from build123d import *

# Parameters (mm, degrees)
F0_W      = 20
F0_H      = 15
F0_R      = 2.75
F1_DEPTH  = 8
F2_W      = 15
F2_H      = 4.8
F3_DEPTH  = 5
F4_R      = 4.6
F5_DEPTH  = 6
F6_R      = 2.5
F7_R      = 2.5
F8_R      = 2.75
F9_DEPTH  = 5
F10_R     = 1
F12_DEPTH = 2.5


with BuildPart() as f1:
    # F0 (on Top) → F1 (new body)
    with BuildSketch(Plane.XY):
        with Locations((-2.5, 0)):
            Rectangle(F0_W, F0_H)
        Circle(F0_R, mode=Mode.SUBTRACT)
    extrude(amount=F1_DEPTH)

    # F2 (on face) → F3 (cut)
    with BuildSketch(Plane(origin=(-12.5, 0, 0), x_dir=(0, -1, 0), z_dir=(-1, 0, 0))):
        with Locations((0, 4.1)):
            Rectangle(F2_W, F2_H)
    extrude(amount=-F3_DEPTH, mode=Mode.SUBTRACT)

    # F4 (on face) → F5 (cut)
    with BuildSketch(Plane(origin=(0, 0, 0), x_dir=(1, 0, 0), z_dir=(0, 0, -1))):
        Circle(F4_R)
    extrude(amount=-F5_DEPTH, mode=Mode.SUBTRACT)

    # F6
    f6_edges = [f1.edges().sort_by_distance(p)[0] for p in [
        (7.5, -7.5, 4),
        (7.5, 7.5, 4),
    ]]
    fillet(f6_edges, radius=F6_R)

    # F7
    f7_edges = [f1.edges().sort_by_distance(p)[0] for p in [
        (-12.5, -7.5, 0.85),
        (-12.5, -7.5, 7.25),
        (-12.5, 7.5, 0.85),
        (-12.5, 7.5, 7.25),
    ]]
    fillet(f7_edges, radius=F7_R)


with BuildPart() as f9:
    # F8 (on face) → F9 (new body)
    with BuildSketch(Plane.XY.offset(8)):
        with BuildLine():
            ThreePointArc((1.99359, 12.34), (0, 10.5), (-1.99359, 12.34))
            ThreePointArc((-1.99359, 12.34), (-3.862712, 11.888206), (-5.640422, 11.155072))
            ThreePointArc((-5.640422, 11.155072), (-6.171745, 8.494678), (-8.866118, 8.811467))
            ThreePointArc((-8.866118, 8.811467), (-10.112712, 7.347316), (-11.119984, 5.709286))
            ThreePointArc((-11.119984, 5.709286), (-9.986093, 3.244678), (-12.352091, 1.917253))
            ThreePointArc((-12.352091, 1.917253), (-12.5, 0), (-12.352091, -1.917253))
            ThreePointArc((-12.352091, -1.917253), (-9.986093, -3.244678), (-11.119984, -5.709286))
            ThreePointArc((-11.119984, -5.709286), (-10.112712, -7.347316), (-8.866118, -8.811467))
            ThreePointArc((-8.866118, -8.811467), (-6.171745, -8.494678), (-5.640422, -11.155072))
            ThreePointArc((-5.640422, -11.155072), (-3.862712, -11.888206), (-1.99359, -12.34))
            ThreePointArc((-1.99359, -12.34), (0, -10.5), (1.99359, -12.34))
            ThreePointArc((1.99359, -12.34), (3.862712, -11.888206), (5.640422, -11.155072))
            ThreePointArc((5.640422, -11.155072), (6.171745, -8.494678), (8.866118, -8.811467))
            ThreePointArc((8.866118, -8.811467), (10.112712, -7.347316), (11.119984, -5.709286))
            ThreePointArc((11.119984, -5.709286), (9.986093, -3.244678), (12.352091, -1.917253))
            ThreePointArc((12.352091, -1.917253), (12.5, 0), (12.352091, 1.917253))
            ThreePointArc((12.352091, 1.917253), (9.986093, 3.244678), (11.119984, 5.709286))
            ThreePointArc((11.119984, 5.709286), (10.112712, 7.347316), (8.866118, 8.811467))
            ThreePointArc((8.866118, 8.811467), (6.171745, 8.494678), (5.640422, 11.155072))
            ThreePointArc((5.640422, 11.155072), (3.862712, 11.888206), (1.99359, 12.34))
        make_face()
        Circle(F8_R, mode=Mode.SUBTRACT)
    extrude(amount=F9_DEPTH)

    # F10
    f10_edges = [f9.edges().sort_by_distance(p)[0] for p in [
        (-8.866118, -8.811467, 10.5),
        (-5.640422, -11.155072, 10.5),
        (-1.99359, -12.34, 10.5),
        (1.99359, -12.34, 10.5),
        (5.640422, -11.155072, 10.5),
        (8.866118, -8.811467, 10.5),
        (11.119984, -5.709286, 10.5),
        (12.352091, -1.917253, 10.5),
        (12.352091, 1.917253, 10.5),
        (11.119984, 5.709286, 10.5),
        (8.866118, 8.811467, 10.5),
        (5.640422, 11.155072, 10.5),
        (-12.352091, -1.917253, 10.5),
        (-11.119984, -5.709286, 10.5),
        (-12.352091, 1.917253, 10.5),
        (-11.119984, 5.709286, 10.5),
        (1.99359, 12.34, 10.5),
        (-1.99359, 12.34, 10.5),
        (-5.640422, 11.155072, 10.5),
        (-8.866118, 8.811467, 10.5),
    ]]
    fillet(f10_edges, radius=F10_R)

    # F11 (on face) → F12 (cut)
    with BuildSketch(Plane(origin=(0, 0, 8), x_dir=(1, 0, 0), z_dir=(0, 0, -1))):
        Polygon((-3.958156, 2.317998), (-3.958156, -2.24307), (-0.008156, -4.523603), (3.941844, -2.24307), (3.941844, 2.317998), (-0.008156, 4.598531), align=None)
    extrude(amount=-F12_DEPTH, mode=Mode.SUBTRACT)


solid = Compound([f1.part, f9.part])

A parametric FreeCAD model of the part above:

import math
import FreeCAD as App
import Part
import Sketcher
Q = App.Units.Quantity


def edges_at(feature, points):
    """Names of the edges that pass closest to the given points."""
    edges = feature.Shape.Edges
    near = lambda p: min(range(len(edges)), key=lambda i: edges[i].distToShape(Part.Vertex(*p))[0])
    return sorted({f"Edge{near(p) + 1}" for p in points})

doc = App.newDocument("Part")
params = doc.addObject("Spreadsheet::Sheet", "Params")
for row, (alias, value) in enumerate([
    ("sketch1_diameter", "5.5 mm"),
    ("sketch1_width", "20 mm"),
    ("sketch1_height", "15 mm"),
    ("pad1_length", "8 mm"),
    ("sketch2_width", "15 mm"),
    ("sketch2_height", "4.8 mm"),
    ("pocket1_length", "5 mm"),
    ("sketch3_diameter", "9.2 mm"),
    ("pocket2_length", "6 mm"),
    ("fillet_radius", "2.5 mm"),
    ("fillet2_radius", "2.5 mm"),
    ("sketch4_radius", "2 mm"),
    ("sketch4_diameter", "5.5 mm"),
    ("pad2_length", "5 mm"),
    ("fillet3_radius", "1 mm"),
    ("pocket3_length", "2.5 mm"),
], start=1):
    params.set(f"A{row}", alias)
    params.set(f"B{row}", "=" + value)
    params.setAlias(f"B{row}", alias)

body = doc.addObject("PartDesign::Body", "Body")

# Sketch on XY plane
sketch1 = body.newObject("Sketcher::SketchObject", "Sketch")
sketch1.AttachmentSupport = (doc.getObject("XY_Plane"), [""])
sketch1.MapMode = "FlatFace"
sketch1.addGeometry(Part.LineSegment(App.Vector(-12.5, 7.5, 0), App.Vector(-12.5, -7.5, 0)), False)
sketch1.addGeometry(Part.LineSegment(App.Vector(-12.5, -7.5, 0), App.Vector(7.5, -7.5, 0)), False)
sketch1.addGeometry(Part.LineSegment(App.Vector(7.5, -7.5, 0), App.Vector(7.5, 7.5, 0)), False)
sketch1.addGeometry(Part.LineSegment(App.Vector(7.5, 7.5, 0), App.Vector(-12.5, 7.5, 0)), False)
sketch1.addGeometry(Part.Circle(App.Vector(0, 0, 0), App.Vector(0, 0, 1), 2.75), False)
sketch1.addConstraint(Sketcher.Constraint("Coincident", 0, 2, 1, 1))
sketch1.addConstraint(Sketcher.Constraint("Coincident", 1, 2, 2, 1))
sketch1.addConstraint(Sketcher.Constraint("Coincident", 2, 2, 3, 1))
sketch1.addConstraint(Sketcher.Constraint("Coincident", 3, 2, 0, 1))
sketch1.addConstraint(Sketcher.Constraint("Vertical", 0))
sketch1.addConstraint(Sketcher.Constraint("Horizontal", 1))
sketch1.addConstraint(Sketcher.Constraint("Vertical", 2))
sketch1.addConstraint(Sketcher.Constraint("Horizontal", 3))
sketch1.addConstraint(Sketcher.Constraint("Coincident", 4, 3, -1, 1))
sketch1.addConstraint(Sketcher.Constraint("Diameter", 4, Q("5.5 mm")))
sketch1.addConstraint(Sketcher.Constraint("DistanceX", 1, 1, 1, 2, Q("20 mm")))
sketch1.addConstraint(Sketcher.Constraint("DistanceY", 0, 2, 0, 1, Q("15 mm")))
sketch1.addConstraint(Sketcher.Constraint("DistanceX", 0, 2, -1, 1, Q("12.5 mm")))
sketch1.addConstraint(Sketcher.Constraint("DistanceY", 0, 2, -1, 1, Q("7.5 mm")))
sketch1.setExpression("Constraints[9]", "Params.sketch1_diameter")
sketch1.setExpression("Constraints[10]", "Params.sketch1_width")
sketch1.setExpression("Constraints[11]", "Params.sketch1_height")
pad1 = body.newObject("PartDesign::Pad", "Pad")
pad1.Profile = sketch1
pad1.setExpression("Length", "Params.pad1_length")

# Sketch on YZ plane
sketch2 = body.newObject("Sketcher::SketchObject", "Sketch001")
sketch2.AttachmentSupport = (doc.getObject("YZ_Plane"), [""])
sketch2.MapMode = "FlatFace"
sketch2.AttachmentOffset = App.Placement(App.Vector(0, 0, -12.5), App.Rotation())
sketch2.addGeometry(Part.LineSegment(App.Vector(7.5, 6.5, 0), App.Vector(7.5, 1.7, 0)), False)
sketch2.addGeometry(Part.LineSegment(App.Vector(7.5, 1.7, 0), App.Vector(-7.5, 1.7, 0)), False)
sketch2.addGeometry(Part.LineSegment(App.Vector(-7.5, 1.7, 0), App.Vector(-7.5, 6.5, 0)), False)
sketch2.addGeometry(Part.LineSegment(App.Vector(-7.5, 6.5, 0), App.Vector(7.5, 6.5, 0)), False)
sketch2.addConstraint(Sketcher.Constraint("Coincident", 0, 2, 1, 1))
sketch2.addConstraint(Sketcher.Constraint("Coincident", 1, 2, 2, 1))
sketch2.addConstraint(Sketcher.Constraint("Coincident", 2, 2, 3, 1))
sketch2.addConstraint(Sketcher.Constraint("Coincident", 3, 2, 0, 1))
sketch2.addConstraint(Sketcher.Constraint("Vertical", 0))
sketch2.addConstraint(Sketcher.Constraint("Horizontal", 1))
sketch2.addConstraint(Sketcher.Constraint("Vertical", 2))
sketch2.addConstraint(Sketcher.Constraint("Horizontal", 3))
sketch2.addConstraint(Sketcher.Constraint("DistanceX", 1, 2, 1, 1, Q("15 mm")))
sketch2.addConstraint(Sketcher.Constraint("DistanceY", 0, 2, 0, 1, Q("4.8 mm")))
sketch2.addConstraint(Sketcher.Constraint("DistanceX", -1, 1, 0, 2, Q("7.5 mm")))
sketch2.addConstraint(Sketcher.Constraint("DistanceY", -1, 1, 0, 2, Q("1.7 mm")))
sketch2.setExpression("Constraints[8]", "Params.sketch2_width")
sketch2.setExpression("Constraints[9]", "Params.sketch2_height")
pocket1 = body.newObject("PartDesign::Pocket", "Pocket")
pocket1.Profile = sketch2
pocket1.setExpression("Length", "Params.pocket1_length")
pocket1.Reversed = True

# Sketch on XY plane
sketch3 = body.newObject("Sketcher::SketchObject", "Sketch002")
sketch3.AttachmentSupport = (doc.getObject("XY_Plane"), [""])
sketch3.MapMode = "FlatFace"
sketch3.addGeometry(Part.Circle(App.Vector(0, 0, 0), App.Vector(0, 0, 1), 4.6), False)
sketch3.addConstraint(Sketcher.Constraint("Coincident", 0, 3, -1, 1))
sketch3.addConstraint(Sketcher.Constraint("Diameter", 0, Q("9.2 mm")))
sketch3.setExpression("Constraints[1]", "Params.sketch3_diameter")
pocket2 = body.newObject("PartDesign::Pocket", "Pocket001")
pocket2.Profile = sketch3
pocket2.setExpression("Length", "Params.pocket2_length")
pocket2.Reversed = True
doc.recompute()

fillet = body.newObject("PartDesign::Fillet", "Fillet")
fillet.Base = (pocket2, edges_at(pocket2, [(7.5, -7.5, 4), (7.5, 7.5, 4)]))
fillet.setExpression("Radius", "Params.fillet_radius")
doc.recompute()

fillet2 = body.newObject("PartDesign::Fillet", "Fillet001")
fillet2.Base = (fillet, edges_at(fillet, [
    (-12.5, -7.5, 0.85),
    (-12.5, -7.5, 7.25),
    (-12.5, 7.5, 0.85),
    (-12.5, 7.5, 7.25),
]))
fillet2.setExpression("Radius", "Params.fillet2_radius")
body2 = doc.addObject("PartDesign::Body", "Body001")

# Sketch on XY plane
sketch4 = body2.newObject("Sketcher::SketchObject", "Sketch003")
sketch4.AttachmentSupport = (doc.getObject("XY_Plane001"), [""])
sketch4.MapMode = "FlatFace"
sketch4.AttachmentOffset = App.Placement(App.Vector(0, 0, 8), App.Rotation())
sketch4.addGeometry(Part.ArcOfCircle(Part.Circle(App.Vector(0, 12.5, 0), App.Vector(0, 0, 1), 2), math.radians(-175.411426), math.radians(-4.588574)), False)
sketch4.addGeometry(Part.ArcOfCircle(Part.Circle(App.Vector(0.000012, -0.000033, 0), App.Vector(0, 0, 1), 12.500035), math.radians(99.177163), math.radians(116.82285)), False)
sketch4.addGeometry(Part.ArcOfCircle(Part.Circle(App.Vector(-7.347315, 10.112712, 0), App.Vector(0, 0, 1), 2), math.radians(-139.411448), math.radians(31.41144)), False)
sketch4.addGeometry(Part.ArcOfCircle(Part.Circle(App.Vector(-0.000003, 0.000004, 0), App.Vector(0, 0, 1), 12.499995), math.radians(135.177133), math.radians(152.822877)), False)
sketch4.addGeometry(Part.ArcOfCircle(Part.Circle(App.Vector(-11.888206, 3.862712, 0), App.Vector(0, 0, 1), 2), math.radians(-103.411459), math.radians(67.411437)), False)
sketch4.addGeometry(Part.ArcOfCircle(Part.Circle(App.Vector(0.000038, 0, 0), App.Vector(0, 0, 1), 12.500038), math.radians(171.177159), math.radians(188.822841)), False)
sketch4.addGeometry(Part.ArcOfCircle(Part.Circle(App.Vector(-11.888206, -3.862712, 0), App.Vector(0, 0, 1), 2), math.radians(-67.411437), math.radians(103.411459)), False)
sketch4.addGeometry(Part.ArcOfCircle(Part.Circle(App.Vector(-0.000003, -0.000004, 0), App.Vector(0, 0, 1), 12.499995), math.radians(-152.822877), math.radians(-135.177133)), False)
sketch4.addGeometry(Part.ArcOfCircle(Part.Circle(App.Vector(-7.347315, -10.112712, 0), App.Vector(0, 0, 1), 2), math.radians(-31.41144), math.radians(139.411448)), False)
sketch4.addGeometry(Part.ArcOfCircle(Part.Circle(App.Vector(0.000012, 0.000033, 0), App.Vector(0, 0, 1), 12.500035), math.radians(-116.82285), math.radians(-99.177163)), False)
sketch4.addGeometry(Part.ArcOfCircle(Part.Circle(App.Vector(0, -12.5, 0), App.Vector(0, 0, 1), 2), math.radians(4.588574), math.radians(175.411426)), False)
sketch4.addGeometry(Part.ArcOfCircle(Part.Circle(App.Vector(-0.000012, 0.000033, 0), App.Vector(0, 0, 1), 12.500035), math.radians(-80.822837), math.radians(-63.17715)), False)
sketch4.addGeometry(Part.ArcOfCircle(Part.Circle(App.Vector(7.347315, -10.112712, 0), App.Vector(0, 0, 1), 2), math.radians(40.588552), math.radians(211.41144)), False)
sketch4.addGeometry(Part.ArcOfCircle(Part.Circle(App.Vector(0.000003, -0.000004, 0), App.Vector(0, 0, 1), 12.499995), math.radians(-44.822867), math.radians(-27.177123)), False)
sketch4.addGeometry(Part.ArcOfCircle(Part.Circle(App.Vector(11.888206, -3.862712, 0), App.Vector(0, 0, 1), 2), math.radians(76.588541), math.radians(247.411437)), False)
sketch4.addGeometry(Part.ArcOfCircle(Part.Circle(App.Vector(-0.000038, 0, 0), App.Vector(0, 0, 1), 12.500038), math.radians(-8.822841), math.radians(8.822841)), False)
sketch4.addGeometry(Part.ArcOfCircle(Part.Circle(App.Vector(11.888206, 3.862712, 0), App.Vector(0, 0, 1), 2), math.radians(112.588563), math.radians(283.411459)), False)
sketch4.addGeometry(Part.ArcOfCircle(Part.Circle(App.Vector(0.000003, 0.000004, 0), App.Vector(0, 0, 1), 12.499995), math.radians(27.177123), math.radians(44.822867)), False)
sketch4.addGeometry(Part.ArcOfCircle(Part.Circle(App.Vector(7.347315, 10.112712, 0), App.Vector(0, 0, 1), 2), math.radians(148.58856), math.radians(319.411448)), False)
sketch4.addGeometry(Part.ArcOfCircle(Part.Circle(App.Vector(-0.000012, -0.000033, 0), App.Vector(0, 0, 1), 12.500035), math.radians(63.17715), math.radians(80.822837)), False)
sketch4.addGeometry(Part.Circle(App.Vector(0, 0, 0), App.Vector(0, 0, 1), 2.75), False)
sketch4.addConstraint(Sketcher.Constraint("Coincident", 0, 1, 1, 1))
sketch4.addConstraint(Sketcher.Constraint("Coincident", 1, 2, 2, 2))
sketch4.addConstraint(Sketcher.Constraint("Coincident", 2, 1, 3, 1))
sketch4.addConstraint(Sketcher.Constraint("Coincident", 3, 2, 4, 2))
sketch4.addConstraint(Sketcher.Constraint("Coincident", 4, 1, 5, 1))
sketch4.addConstraint(Sketcher.Constraint("Coincident", 5, 2, 6, 2))
sketch4.addConstraint(Sketcher.Constraint("Coincident", 6, 1, 7, 1))
sketch4.addConstraint(Sketcher.Constraint("Coincident", 7, 2, 8, 2))
sketch4.addConstraint(Sketcher.Constraint("Coincident", 8, 1, 9, 1))
sketch4.addConstraint(Sketcher.Constraint("Coincident", 9, 2, 10, 2))
sketch4.addConstraint(Sketcher.Constraint("Coincident", 10, 1, 11, 1))
sketch4.addConstraint(Sketcher.Constraint("Coincident", 11, 2, 12, 2))
sketch4.addConstraint(Sketcher.Constraint("Coincident", 12, 1, 13, 1))
sketch4.addConstraint(Sketcher.Constraint("Coincident", 13, 2, 14, 2))
sketch4.addConstraint(Sketcher.Constraint("Coincident", 14, 1, 15, 1))
sketch4.addConstraint(Sketcher.Constraint("Coincident", 15, 2, 16, 2))
sketch4.addConstraint(Sketcher.Constraint("Coincident", 16, 1, 17, 1))
sketch4.addConstraint(Sketcher.Constraint("Coincident", 17, 2, 18, 2))
sketch4.addConstraint(Sketcher.Constraint("Coincident", 18, 1, 19, 1))
sketch4.addConstraint(Sketcher.Constraint("Coincident", 19, 2, 0, 2))
sketch4.addConstraint(Sketcher.Constraint("Coincident", 3, 3, -1, 1))
sketch4.addConstraint(Sketcher.Constraint("Coincident", 7, 3, -1, 1))
sketch4.addConstraint(Sketcher.Constraint("Coincident", 13, 3, -1, 1))
sketch4.addConstraint(Sketcher.Constraint("Coincident", 17, 3, -1, 1))
sketch4.addConstraint(Sketcher.Constraint("Coincident", 20, 3, -1, 1))
sketch4.addConstraint(Sketcher.Constraint("Equal", 0, 2))
sketch4.addConstraint(Sketcher.Constraint("Equal", 2, 4))
sketch4.addConstraint(Sketcher.Constraint("Equal", 4, 6))
sketch4.addConstraint(Sketcher.Constraint("Equal", 3, 7))
sketch4.addConstraint(Sketcher.Constraint("Equal", 6, 8))
sketch4.addConstraint(Sketcher.Constraint("Equal", 1, 9))
sketch4.addConstraint(Sketcher.Constraint("Equal", 8, 10))
sketch4.addConstraint(Sketcher.Constraint("Equal", 9, 11))
sketch4.addConstraint(Sketcher.Constraint("Equal", 10, 12))
sketch4.addConstraint(Sketcher.Constraint("Equal", 7, 13))
sketch4.addConstraint(Sketcher.Constraint("Equal", 12, 14))
sketch4.addConstraint(Sketcher.Constraint("Equal", 5, 15))
sketch4.addConstraint(Sketcher.Constraint("Equal", 14, 16))
sketch4.addConstraint(Sketcher.Constraint("Equal", 13, 17))
sketch4.addConstraint(Sketcher.Constraint("Equal", 16, 18))
sketch4.addConstraint(Sketcher.Constraint("Equal", 11, 19))
sketch4.addConstraint(Sketcher.Constraint("Symmetric", 0, 3, 10, 3, -1, 1))
sketch4.addConstraint(Sketcher.Constraint("Symmetric", 1, 3, 11, 3, -1, 1))
sketch4.addConstraint(Sketcher.Constraint("Symmetric", 2, 3, 12, 3, -1, 1))
sketch4.addConstraint(Sketcher.Constraint("Symmetric", 4, 3, 14, 3, -1, 1))
sketch4.addConstraint(Sketcher.Constraint("Symmetric", 5, 3, 15, 3, -1, 1))
sketch4.addConstraint(Sketcher.Constraint("Symmetric", 6, 3, 16, 3, -1, 1))
sketch4.addConstraint(Sketcher.Constraint("Symmetric", 8, 3, 18, 3, -1, 1))
sketch4.addConstraint(Sketcher.Constraint("Symmetric", 9, 3, 19, 3, -1, 1))
sketch4.addConstraint(Sketcher.Constraint("Symmetric", 9, 3, 11, 3, -2))
sketch4.addConstraint(Sketcher.Constraint("Symmetric", 8, 3, 12, 3, -2))
sketch4.addConstraint(Sketcher.Constraint("Symmetric", 6, 3, 14, 3, -2))
sketch4.addConstraint(Sketcher.Constraint("PointOnObject", 0, 3, -2))
sketch4.addConstraint(Sketcher.Constraint("PointOnObject", 5, 3, -1))
sketch4.addConstraint(Sketcher.Constraint("Radius", 0, Q("2 mm")))
sketch4.addConstraint(Sketcher.Constraint("Diameter", 20, Q("5.5 mm")))
sketch4.addConstraint(Sketcher.Constraint("DistanceY", -1, 1, 0, 3, Q("12.5 mm")))
sketch4.addConstraint(Sketcher.Constraint("DistanceY", -1, 1, 0, 1, Q("12.34 mm")))
sketch4.addConstraint(Sketcher.Constraint("DistanceY", 4, 3, 2, 3, Q("6.25 mm")))
sketch4.addConstraint(Sketcher.Constraint("Radius", 1, Q("12.500035 mm")))
sketch4.addConstraint(Sketcher.Constraint("Radius", 3, Q("12.499995 mm")))
sketch4.addConstraint(Sketcher.Constraint("Radius", 5, Q("12.500038 mm")))
sketch4.addConstraint(Sketcher.Constraint("DistanceY", 6, 3, 3, 2, Q("9.571998 mm")))
sketch4.addConstraint(Sketcher.Constraint("DistanceY", -1, 1, 2, 3, Q("10.112712 mm")))
sketch4.addConstraint(Sketcher.Constraint("DistanceX", 4, 1, -1, 1, Q("12.352091 mm")))
sketch4.addConstraint(Sketcher.Constraint("DistanceY", 8, 1, -1, 1, Q("11.155072 mm")))
sketch4.addConstraint(Sketcher.Constraint("DistanceX", 4, 3, 2, 3, Q("4.540891 mm")))
sketch4.setExpression("Constraints[54]", "Params.sketch4_radius")
sketch4.setExpression("Constraints[55]", "Params.sketch4_diameter")
pad2 = body2.newObject("PartDesign::Pad", "Pad001")
pad2.Profile = sketch4
pad2.setExpression("Length", "Params.pad2_length")
doc.recompute()

fillet3 = body2.newObject("PartDesign::Fillet", "Fillet002")
fillet3.Base = (pad2, edges_at(pad2, [
    (-8.866, -8.811, 10.5),
    (-5.64, -11.155, 10.5),
    (-1.994, -12.34, 10.5),
    (1.994, -12.34, 10.5),
    (5.64, -11.155, 10.5),
    (8.866, -8.811, 10.5),
    (11.12, -5.709, 10.5),
    (12.352, -1.917, 10.5),
    (12.352, 1.917, 10.5),
    (11.12, 5.709, 10.5),
    (8.866, 8.811, 10.5),
    (5.64, 11.155, 10.5),
    (-12.352, -1.917, 10.5),
    (-11.12, -5.709, 10.5),
    (-12.352, 1.917, 10.5),
    (-11.12, 5.709, 10.5),
    (1.994, 12.34, 10.5),
    (-1.994, 12.34, 10.5),
    (-5.64, 11.155, 10.5),
    (-8.866, 8.811, 10.5),
]))
fillet3.setExpression("Radius", "Params.fillet3_radius")

# Sketch on XY plane
sketch5 = body2.newObject("Sketcher::SketchObject", "Sketch004")
sketch5.AttachmentSupport = (doc.getObject("XY_Plane001"), [""])
sketch5.MapMode = "FlatFace"
sketch5.AttachmentOffset = App.Placement(App.Vector(0, 0, 8), App.Rotation())
sketch5.addGeometry(Part.LineSegment(App.Vector(-3.958156, -2.317998, 0), App.Vector(-3.958156, 2.24307, 0)), False)
sketch5.addGeometry(Part.LineSegment(App.Vector(-3.958156, 2.24307, 0), App.Vector(-0.008156, 4.523603, 0)), False)
sketch5.addGeometry(Part.LineSegment(App.Vector(-0.008156, 4.523603, 0), App.Vector(3.941844, 2.24307, 0)), False)
sketch5.addGeometry(Part.LineSegment(App.Vector(3.941844, 2.24307, 0), App.Vector(3.941844, -2.317998, 0)), False)
sketch5.addGeometry(Part.LineSegment(App.Vector(3.941844, -2.317998, 0), App.Vector(-0.008156, -4.598531, 0)), False)
sketch5.addGeometry(Part.LineSegment(App.Vector(-0.008156, -4.598531, 0), App.Vector(-3.958156, -2.317998, 0)), False)
sketch5.addConstraint(Sketcher.Constraint("Coincident", 0, 2, 1, 1))
sketch5.addConstraint(Sketcher.Constraint("Coincident", 1, 2, 2, 1))
sketch5.addConstraint(Sketcher.Constraint("Coincident", 2, 2, 3, 1))
sketch5.addConstraint(Sketcher.Constraint("Coincident", 3, 2, 4, 1))
sketch5.addConstraint(Sketcher.Constraint("Coincident", 4, 2, 5, 1))
sketch5.addConstraint(Sketcher.Constraint("Coincident", 5, 2, 0, 1))
sketch5.addConstraint(Sketcher.Constraint("Vertical", 0))
sketch5.addConstraint(Sketcher.Constraint("Vertical", 3))
sketch5.addConstraint(Sketcher.Constraint("Parallel", 1, 4))
sketch5.addConstraint(Sketcher.Constraint("Parallel", 2, 5))
sketch5.addConstraint(Sketcher.Constraint("Horizontal", 0, 2, 2, 2))
sketch5.addConstraint(Sketcher.Constraint("Horizontal", 3, 2, 5, 2))
sketch5.addConstraint(Sketcher.Constraint("Vertical", 1, 2, 4, 2))
sketch5.addConstraint(Sketcher.Constraint("Angle", 1, Q("29.999994 deg")))
sketch5.addConstraint(Sketcher.Constraint("DistanceX", 0, 2, 2, 2, Q("7.9 mm")))
sketch5.addConstraint(Sketcher.Constraint("DistanceY", 3, 2, 1, 2, Q("6.841601 mm")))
sketch5.addConstraint(Sketcher.Constraint("DistanceY", -1, 1, 0, 2, Q("2.24307 mm")))
sketch5.addConstraint(Sketcher.Constraint("DistanceX", 0, 2, -1, 1, Q("3.958156 mm")))
pocket3 = body2.newObject("PartDesign::Pocket", "Pocket002")
pocket3.Profile = sketch5
pocket3.setExpression("Length", "Params.pocket3_length")
pocket3.Reversed = True

doc.recompute()
